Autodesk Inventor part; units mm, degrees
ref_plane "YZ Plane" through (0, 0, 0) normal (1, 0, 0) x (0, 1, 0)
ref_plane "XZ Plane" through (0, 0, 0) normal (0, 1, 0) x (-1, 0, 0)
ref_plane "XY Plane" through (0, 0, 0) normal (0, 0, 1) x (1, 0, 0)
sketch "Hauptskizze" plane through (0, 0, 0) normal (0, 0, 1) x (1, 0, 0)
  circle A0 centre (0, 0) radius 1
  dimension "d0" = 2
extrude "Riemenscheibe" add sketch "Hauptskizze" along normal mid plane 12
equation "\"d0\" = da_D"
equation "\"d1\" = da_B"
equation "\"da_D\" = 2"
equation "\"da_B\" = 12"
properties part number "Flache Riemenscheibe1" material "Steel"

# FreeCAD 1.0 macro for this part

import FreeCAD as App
import Part
import Sketcher

V = App.Vector
Q = App.Units.Quantity

doc = App.newDocument("Part")
body = doc.addObject("PartDesign::Body", "Body")

# Sketch on XY plane
sketch1 = body.newObject("Sketcher::SketchObject", "Sketch")
sketch1.AttachmentSupport = (doc.getObject("XY_Plane"), [""])
sketch1.MapMode = "FlatFace"
sketch1.addGeometry(Part.Circle(V(0, 0, 0), V(0, 0, 1), 1), False)
sketch1.addConstraint(Sketcher.Constraint("Coincident", 0, 3, -1, 1))
sketch1.addConstraint(Sketcher.Constraint("Diameter", 0, Q("2 mm")))
pad1 = body.newObject("PartDesign::Pad", "Pad")
pad1.Profile = sketch1
pad1.Length = 12
pad1.Midplane = True

doc.recompute()
